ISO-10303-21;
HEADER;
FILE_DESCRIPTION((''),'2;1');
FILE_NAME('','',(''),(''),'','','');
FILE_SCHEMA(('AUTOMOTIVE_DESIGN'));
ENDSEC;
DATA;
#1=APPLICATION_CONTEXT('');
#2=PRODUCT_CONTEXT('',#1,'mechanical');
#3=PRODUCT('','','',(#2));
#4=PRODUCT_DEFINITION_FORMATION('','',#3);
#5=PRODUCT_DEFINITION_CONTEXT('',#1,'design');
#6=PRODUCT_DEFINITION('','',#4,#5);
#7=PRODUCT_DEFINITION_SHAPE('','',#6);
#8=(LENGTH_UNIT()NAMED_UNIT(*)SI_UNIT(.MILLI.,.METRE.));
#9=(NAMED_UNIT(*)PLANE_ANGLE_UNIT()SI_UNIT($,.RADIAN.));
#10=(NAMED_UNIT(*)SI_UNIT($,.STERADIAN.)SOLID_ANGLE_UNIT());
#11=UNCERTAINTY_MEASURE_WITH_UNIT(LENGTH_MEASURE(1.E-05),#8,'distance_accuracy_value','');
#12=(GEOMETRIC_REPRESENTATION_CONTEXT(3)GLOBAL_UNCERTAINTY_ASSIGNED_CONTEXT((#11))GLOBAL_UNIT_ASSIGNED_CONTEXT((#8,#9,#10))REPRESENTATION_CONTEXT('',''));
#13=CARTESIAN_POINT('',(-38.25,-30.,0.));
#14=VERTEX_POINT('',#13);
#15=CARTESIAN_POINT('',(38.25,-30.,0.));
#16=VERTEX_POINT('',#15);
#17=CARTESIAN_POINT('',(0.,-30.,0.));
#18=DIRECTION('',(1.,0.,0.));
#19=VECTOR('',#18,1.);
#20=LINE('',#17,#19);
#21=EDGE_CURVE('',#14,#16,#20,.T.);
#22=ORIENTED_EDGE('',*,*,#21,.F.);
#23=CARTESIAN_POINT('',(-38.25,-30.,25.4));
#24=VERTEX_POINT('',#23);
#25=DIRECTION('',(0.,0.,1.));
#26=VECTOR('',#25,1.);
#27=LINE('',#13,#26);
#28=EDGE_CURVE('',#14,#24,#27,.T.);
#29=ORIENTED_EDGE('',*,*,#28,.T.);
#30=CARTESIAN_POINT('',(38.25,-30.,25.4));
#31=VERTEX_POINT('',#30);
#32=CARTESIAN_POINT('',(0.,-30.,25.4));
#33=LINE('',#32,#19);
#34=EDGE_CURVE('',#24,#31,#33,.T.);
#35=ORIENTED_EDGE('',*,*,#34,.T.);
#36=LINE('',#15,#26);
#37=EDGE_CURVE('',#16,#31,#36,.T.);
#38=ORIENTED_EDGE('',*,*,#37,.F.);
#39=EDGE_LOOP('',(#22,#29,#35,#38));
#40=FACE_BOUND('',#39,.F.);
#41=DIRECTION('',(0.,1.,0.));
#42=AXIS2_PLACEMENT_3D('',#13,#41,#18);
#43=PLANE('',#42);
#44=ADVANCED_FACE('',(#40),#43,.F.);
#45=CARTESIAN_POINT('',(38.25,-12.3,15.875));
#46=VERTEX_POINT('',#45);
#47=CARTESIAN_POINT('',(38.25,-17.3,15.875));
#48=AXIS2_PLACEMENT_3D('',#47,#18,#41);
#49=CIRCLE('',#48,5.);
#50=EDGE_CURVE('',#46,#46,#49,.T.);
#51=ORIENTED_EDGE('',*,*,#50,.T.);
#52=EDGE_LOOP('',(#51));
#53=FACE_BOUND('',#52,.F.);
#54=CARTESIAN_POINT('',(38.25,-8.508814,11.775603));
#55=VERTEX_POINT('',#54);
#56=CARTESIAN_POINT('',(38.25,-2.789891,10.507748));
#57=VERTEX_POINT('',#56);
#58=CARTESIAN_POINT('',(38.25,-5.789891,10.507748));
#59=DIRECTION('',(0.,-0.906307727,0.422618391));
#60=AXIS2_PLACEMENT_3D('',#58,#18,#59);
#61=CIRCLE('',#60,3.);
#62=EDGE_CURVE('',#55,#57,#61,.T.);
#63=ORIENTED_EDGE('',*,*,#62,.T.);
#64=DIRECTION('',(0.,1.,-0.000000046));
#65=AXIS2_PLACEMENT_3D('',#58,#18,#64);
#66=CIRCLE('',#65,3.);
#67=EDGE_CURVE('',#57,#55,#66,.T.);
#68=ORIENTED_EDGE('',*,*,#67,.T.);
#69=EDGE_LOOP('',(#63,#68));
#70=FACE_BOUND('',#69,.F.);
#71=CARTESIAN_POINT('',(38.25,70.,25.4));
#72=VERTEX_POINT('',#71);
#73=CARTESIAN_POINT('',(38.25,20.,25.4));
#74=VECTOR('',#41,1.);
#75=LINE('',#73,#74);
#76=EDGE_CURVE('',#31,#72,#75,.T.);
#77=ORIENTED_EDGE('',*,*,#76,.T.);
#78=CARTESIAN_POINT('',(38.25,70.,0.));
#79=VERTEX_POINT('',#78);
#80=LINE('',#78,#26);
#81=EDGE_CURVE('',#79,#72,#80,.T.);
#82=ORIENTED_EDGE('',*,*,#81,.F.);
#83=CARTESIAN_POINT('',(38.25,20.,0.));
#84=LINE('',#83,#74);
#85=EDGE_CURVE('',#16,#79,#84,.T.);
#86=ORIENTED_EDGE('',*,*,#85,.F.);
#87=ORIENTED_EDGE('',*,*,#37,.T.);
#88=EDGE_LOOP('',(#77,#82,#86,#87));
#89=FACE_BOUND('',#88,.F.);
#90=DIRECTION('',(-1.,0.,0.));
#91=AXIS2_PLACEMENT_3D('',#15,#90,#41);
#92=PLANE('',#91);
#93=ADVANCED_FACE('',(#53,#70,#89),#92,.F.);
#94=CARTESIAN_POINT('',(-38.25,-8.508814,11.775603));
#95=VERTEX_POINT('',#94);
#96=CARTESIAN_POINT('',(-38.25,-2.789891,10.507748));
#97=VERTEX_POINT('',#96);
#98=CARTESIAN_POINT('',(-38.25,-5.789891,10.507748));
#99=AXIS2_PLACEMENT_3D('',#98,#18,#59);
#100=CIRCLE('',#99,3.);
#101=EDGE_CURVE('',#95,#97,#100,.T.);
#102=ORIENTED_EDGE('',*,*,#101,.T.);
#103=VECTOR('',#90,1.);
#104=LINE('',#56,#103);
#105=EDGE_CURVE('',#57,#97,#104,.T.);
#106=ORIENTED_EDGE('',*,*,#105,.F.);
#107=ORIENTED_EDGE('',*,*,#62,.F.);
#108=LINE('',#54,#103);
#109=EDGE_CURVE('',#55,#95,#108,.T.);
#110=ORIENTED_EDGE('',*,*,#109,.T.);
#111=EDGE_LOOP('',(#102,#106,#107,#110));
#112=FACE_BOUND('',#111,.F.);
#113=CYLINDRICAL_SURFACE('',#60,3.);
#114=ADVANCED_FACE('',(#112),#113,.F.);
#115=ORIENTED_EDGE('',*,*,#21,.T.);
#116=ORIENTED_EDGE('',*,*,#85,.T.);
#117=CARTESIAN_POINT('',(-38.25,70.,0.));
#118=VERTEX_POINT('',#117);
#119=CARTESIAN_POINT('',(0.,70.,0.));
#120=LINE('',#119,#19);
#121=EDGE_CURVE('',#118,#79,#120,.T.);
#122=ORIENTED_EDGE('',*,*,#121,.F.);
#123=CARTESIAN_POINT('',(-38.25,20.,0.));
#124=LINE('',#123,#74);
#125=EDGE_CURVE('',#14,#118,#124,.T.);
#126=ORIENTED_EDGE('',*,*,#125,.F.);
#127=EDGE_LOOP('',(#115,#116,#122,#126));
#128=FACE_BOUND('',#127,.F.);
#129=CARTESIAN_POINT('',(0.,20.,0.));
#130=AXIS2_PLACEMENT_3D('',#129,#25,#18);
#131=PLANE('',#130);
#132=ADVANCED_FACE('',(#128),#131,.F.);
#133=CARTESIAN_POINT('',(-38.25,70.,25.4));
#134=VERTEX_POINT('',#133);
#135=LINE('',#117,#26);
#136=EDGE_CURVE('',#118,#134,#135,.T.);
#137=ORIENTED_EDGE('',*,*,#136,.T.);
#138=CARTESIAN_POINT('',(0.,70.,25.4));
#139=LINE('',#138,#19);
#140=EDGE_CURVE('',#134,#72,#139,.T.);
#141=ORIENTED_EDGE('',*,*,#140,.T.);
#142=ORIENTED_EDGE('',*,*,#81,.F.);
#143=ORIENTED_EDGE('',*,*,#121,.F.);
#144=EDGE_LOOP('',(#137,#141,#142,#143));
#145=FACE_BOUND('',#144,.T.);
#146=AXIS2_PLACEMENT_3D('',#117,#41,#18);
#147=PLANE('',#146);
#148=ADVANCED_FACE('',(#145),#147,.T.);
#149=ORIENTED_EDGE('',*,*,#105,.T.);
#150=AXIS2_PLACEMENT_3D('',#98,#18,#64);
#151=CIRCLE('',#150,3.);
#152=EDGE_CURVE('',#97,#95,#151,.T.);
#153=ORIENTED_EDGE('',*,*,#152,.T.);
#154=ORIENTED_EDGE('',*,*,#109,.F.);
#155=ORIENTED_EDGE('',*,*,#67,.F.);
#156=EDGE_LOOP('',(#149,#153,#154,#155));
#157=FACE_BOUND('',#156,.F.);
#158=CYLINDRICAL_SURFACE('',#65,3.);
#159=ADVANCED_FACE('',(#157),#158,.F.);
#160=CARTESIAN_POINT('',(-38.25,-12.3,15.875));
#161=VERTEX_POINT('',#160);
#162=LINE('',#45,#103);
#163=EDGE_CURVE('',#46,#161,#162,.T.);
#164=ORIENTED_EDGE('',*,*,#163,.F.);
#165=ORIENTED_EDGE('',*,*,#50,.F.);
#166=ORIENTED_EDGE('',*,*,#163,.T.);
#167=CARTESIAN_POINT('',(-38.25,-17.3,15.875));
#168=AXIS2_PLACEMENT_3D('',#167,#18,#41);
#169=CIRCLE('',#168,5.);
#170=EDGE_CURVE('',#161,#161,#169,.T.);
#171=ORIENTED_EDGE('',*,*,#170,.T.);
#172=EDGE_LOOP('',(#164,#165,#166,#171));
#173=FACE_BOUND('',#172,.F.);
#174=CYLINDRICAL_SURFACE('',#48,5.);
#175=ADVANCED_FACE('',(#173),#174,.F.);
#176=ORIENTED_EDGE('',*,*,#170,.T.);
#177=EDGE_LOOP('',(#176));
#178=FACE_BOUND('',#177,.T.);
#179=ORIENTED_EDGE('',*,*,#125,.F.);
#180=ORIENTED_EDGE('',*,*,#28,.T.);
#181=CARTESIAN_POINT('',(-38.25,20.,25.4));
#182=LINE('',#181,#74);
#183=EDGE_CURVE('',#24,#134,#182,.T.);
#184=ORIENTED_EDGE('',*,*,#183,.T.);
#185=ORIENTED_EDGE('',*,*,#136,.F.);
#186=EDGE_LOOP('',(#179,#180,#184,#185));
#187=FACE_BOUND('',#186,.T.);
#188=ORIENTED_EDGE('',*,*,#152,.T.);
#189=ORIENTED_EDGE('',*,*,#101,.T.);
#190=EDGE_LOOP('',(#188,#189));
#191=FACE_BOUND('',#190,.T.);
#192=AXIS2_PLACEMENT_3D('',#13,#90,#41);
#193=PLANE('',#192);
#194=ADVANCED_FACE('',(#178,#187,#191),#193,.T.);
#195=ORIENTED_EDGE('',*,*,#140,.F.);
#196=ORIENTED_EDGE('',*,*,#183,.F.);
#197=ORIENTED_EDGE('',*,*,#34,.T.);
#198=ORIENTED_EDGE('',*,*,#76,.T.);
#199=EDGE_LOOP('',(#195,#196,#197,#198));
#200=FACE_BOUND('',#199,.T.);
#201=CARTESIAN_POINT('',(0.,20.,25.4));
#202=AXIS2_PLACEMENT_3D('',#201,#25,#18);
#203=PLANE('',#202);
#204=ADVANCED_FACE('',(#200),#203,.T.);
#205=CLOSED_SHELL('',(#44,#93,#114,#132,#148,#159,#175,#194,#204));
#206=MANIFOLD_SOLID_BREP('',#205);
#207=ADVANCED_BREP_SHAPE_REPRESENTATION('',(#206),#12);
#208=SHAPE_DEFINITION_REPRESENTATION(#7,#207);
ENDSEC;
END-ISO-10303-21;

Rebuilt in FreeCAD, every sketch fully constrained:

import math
import FreeCAD as App
import Part
import Sketcher

V = App.Vector


def add_polygon(sketch, points):
    """Adds a closed chain of lines whose ends are joined by coincident constraints."""
    first, n = sketch.GeometryCount, len(points)
    for a, b in zip(points, points[1:] + points[:1]):
        sketch.addGeometry(Part.LineSegment(App.Vector(*a, 0), App.Vector(*b, 0)), False)
    for i in range(n):
        sketch.addConstraint(Sketcher.Constraint("Coincident", first + i, 2, first + (i + 1) % n, 1))

doc = App.newDocument("Part")
body = doc.addObject("PartDesign::Body", "Body")

# Sketch on XY plane
sketch1 = body.newObject("Sketcher::SketchObject", "Sketch")
sketch1.AttachmentSupport = (doc.getObject("XY_Plane"), [""])
sketch1.MapMode = "FlatFace"
add_polygon(sketch1, [(-38.25, 70), (-38.25, -30), (38.25, -30), (38.25, 70)])  # lines 0-3
sketch1.addConstraint([
    Sketcher.Constraint("Vertical", 0),
    Sketcher.Constraint("Horizontal", 1),
    Sketcher.Constraint("Vertical", 2),
    Sketcher.Constraint("Horizontal", 3),
    Sketcher.Constraint("DistanceY", 0, 2, 0, 1, 100.0),
    Sketcher.Constraint("DistanceX", 1, 1, 1, 2, 76.5),
    Sketcher.Constraint("DistanceY", 0, 2, -1, 1, 30.0),
    Sketcher.Constraint("DistanceX", 0, 2, -1, 1, 38.25),
])
pad1 = body.newObject("PartDesign::Pad", "Pad")
pad1.Profile = sketch1
pad1.Length = 25.4

# Sketch on YZ plane
sketch2 = body.newObject("Sketcher::SketchObject", "Sketch001")
sketch2.AttachmentSupport = (doc.getObject("YZ_Plane"), [""])
sketch2.MapMode = "FlatFace"
sketch2.AttachmentOffset = App.Placement(V(0, 0, 38.25), App.Rotation())
sketch2.addGeometry(Part.Circle(V(-17.3, 15.875, 0), V(0, 0, 1), 5), False)
sketch2.addConstraint([
    Sketcher.Constraint("Diameter", 0, 10.0),
    Sketcher.Constraint("DistanceX", 0, 3, -1, 1, 17.3),
    Sketcher.Constraint("DistanceY", -1, 1, 0, 3, 15.875),
])
pocket1 = body.newObject("PartDesign::Pocket", "Pocket")
pocket1.Profile = sketch2
pocket1.Type = "ThroughAll"

# Sketch on YZ plane
sketch3 = body.newObject("Sketcher::SketchObject", "Sketch002")
sketch3.AttachmentSupport = (doc.getObject("YZ_Plane"), [""])
sketch3.MapMode = "FlatFace"
sketch3.AttachmentOffset = App.Placement(V(0, 0, 38.25), App.Rotation())
sketch3.addGeometry([
    Part.ArcOfCircle(Part.Circle(V(-5.789891, 10.507748, 0), V(0, 0, 1), 3), math.radians(154.999992), math.radians(360.000003)),
    Part.ArcOfCircle(Part.Circle(V(-5.789891, 10.507748, 0), V(0, 0, 1), 3), math.radians(-0.000003), math.radians(154.999997)),
], False)
sketch3.addConstraint([
    Sketcher.Constraint("Tangent", 0, 1, 1, 2),
    Sketcher.Constraint("Coincident", 1, 1, 0, 2),
    Sketcher.Constraint("Horizontal", 0, 3, 1, 1),
    Sketcher.Constraint("Radius", 0, 3.0),
    Sketcher.Constraint("DistanceX", 0, 3, -1, 1, 5.789891),
    Sketcher.Constraint("DistanceY", -1, 1, 1, 3, 10.507748),
    Sketcher.Constraint("DistanceX", 0, 1, -1, 1, 8.508814),
])
pocket2 = body.newObject("PartDesign::Pocket", "Pocket001")
pocket2.Profile = sketch3
pocket2.Type = "ThroughAll"

doc.recompute()
